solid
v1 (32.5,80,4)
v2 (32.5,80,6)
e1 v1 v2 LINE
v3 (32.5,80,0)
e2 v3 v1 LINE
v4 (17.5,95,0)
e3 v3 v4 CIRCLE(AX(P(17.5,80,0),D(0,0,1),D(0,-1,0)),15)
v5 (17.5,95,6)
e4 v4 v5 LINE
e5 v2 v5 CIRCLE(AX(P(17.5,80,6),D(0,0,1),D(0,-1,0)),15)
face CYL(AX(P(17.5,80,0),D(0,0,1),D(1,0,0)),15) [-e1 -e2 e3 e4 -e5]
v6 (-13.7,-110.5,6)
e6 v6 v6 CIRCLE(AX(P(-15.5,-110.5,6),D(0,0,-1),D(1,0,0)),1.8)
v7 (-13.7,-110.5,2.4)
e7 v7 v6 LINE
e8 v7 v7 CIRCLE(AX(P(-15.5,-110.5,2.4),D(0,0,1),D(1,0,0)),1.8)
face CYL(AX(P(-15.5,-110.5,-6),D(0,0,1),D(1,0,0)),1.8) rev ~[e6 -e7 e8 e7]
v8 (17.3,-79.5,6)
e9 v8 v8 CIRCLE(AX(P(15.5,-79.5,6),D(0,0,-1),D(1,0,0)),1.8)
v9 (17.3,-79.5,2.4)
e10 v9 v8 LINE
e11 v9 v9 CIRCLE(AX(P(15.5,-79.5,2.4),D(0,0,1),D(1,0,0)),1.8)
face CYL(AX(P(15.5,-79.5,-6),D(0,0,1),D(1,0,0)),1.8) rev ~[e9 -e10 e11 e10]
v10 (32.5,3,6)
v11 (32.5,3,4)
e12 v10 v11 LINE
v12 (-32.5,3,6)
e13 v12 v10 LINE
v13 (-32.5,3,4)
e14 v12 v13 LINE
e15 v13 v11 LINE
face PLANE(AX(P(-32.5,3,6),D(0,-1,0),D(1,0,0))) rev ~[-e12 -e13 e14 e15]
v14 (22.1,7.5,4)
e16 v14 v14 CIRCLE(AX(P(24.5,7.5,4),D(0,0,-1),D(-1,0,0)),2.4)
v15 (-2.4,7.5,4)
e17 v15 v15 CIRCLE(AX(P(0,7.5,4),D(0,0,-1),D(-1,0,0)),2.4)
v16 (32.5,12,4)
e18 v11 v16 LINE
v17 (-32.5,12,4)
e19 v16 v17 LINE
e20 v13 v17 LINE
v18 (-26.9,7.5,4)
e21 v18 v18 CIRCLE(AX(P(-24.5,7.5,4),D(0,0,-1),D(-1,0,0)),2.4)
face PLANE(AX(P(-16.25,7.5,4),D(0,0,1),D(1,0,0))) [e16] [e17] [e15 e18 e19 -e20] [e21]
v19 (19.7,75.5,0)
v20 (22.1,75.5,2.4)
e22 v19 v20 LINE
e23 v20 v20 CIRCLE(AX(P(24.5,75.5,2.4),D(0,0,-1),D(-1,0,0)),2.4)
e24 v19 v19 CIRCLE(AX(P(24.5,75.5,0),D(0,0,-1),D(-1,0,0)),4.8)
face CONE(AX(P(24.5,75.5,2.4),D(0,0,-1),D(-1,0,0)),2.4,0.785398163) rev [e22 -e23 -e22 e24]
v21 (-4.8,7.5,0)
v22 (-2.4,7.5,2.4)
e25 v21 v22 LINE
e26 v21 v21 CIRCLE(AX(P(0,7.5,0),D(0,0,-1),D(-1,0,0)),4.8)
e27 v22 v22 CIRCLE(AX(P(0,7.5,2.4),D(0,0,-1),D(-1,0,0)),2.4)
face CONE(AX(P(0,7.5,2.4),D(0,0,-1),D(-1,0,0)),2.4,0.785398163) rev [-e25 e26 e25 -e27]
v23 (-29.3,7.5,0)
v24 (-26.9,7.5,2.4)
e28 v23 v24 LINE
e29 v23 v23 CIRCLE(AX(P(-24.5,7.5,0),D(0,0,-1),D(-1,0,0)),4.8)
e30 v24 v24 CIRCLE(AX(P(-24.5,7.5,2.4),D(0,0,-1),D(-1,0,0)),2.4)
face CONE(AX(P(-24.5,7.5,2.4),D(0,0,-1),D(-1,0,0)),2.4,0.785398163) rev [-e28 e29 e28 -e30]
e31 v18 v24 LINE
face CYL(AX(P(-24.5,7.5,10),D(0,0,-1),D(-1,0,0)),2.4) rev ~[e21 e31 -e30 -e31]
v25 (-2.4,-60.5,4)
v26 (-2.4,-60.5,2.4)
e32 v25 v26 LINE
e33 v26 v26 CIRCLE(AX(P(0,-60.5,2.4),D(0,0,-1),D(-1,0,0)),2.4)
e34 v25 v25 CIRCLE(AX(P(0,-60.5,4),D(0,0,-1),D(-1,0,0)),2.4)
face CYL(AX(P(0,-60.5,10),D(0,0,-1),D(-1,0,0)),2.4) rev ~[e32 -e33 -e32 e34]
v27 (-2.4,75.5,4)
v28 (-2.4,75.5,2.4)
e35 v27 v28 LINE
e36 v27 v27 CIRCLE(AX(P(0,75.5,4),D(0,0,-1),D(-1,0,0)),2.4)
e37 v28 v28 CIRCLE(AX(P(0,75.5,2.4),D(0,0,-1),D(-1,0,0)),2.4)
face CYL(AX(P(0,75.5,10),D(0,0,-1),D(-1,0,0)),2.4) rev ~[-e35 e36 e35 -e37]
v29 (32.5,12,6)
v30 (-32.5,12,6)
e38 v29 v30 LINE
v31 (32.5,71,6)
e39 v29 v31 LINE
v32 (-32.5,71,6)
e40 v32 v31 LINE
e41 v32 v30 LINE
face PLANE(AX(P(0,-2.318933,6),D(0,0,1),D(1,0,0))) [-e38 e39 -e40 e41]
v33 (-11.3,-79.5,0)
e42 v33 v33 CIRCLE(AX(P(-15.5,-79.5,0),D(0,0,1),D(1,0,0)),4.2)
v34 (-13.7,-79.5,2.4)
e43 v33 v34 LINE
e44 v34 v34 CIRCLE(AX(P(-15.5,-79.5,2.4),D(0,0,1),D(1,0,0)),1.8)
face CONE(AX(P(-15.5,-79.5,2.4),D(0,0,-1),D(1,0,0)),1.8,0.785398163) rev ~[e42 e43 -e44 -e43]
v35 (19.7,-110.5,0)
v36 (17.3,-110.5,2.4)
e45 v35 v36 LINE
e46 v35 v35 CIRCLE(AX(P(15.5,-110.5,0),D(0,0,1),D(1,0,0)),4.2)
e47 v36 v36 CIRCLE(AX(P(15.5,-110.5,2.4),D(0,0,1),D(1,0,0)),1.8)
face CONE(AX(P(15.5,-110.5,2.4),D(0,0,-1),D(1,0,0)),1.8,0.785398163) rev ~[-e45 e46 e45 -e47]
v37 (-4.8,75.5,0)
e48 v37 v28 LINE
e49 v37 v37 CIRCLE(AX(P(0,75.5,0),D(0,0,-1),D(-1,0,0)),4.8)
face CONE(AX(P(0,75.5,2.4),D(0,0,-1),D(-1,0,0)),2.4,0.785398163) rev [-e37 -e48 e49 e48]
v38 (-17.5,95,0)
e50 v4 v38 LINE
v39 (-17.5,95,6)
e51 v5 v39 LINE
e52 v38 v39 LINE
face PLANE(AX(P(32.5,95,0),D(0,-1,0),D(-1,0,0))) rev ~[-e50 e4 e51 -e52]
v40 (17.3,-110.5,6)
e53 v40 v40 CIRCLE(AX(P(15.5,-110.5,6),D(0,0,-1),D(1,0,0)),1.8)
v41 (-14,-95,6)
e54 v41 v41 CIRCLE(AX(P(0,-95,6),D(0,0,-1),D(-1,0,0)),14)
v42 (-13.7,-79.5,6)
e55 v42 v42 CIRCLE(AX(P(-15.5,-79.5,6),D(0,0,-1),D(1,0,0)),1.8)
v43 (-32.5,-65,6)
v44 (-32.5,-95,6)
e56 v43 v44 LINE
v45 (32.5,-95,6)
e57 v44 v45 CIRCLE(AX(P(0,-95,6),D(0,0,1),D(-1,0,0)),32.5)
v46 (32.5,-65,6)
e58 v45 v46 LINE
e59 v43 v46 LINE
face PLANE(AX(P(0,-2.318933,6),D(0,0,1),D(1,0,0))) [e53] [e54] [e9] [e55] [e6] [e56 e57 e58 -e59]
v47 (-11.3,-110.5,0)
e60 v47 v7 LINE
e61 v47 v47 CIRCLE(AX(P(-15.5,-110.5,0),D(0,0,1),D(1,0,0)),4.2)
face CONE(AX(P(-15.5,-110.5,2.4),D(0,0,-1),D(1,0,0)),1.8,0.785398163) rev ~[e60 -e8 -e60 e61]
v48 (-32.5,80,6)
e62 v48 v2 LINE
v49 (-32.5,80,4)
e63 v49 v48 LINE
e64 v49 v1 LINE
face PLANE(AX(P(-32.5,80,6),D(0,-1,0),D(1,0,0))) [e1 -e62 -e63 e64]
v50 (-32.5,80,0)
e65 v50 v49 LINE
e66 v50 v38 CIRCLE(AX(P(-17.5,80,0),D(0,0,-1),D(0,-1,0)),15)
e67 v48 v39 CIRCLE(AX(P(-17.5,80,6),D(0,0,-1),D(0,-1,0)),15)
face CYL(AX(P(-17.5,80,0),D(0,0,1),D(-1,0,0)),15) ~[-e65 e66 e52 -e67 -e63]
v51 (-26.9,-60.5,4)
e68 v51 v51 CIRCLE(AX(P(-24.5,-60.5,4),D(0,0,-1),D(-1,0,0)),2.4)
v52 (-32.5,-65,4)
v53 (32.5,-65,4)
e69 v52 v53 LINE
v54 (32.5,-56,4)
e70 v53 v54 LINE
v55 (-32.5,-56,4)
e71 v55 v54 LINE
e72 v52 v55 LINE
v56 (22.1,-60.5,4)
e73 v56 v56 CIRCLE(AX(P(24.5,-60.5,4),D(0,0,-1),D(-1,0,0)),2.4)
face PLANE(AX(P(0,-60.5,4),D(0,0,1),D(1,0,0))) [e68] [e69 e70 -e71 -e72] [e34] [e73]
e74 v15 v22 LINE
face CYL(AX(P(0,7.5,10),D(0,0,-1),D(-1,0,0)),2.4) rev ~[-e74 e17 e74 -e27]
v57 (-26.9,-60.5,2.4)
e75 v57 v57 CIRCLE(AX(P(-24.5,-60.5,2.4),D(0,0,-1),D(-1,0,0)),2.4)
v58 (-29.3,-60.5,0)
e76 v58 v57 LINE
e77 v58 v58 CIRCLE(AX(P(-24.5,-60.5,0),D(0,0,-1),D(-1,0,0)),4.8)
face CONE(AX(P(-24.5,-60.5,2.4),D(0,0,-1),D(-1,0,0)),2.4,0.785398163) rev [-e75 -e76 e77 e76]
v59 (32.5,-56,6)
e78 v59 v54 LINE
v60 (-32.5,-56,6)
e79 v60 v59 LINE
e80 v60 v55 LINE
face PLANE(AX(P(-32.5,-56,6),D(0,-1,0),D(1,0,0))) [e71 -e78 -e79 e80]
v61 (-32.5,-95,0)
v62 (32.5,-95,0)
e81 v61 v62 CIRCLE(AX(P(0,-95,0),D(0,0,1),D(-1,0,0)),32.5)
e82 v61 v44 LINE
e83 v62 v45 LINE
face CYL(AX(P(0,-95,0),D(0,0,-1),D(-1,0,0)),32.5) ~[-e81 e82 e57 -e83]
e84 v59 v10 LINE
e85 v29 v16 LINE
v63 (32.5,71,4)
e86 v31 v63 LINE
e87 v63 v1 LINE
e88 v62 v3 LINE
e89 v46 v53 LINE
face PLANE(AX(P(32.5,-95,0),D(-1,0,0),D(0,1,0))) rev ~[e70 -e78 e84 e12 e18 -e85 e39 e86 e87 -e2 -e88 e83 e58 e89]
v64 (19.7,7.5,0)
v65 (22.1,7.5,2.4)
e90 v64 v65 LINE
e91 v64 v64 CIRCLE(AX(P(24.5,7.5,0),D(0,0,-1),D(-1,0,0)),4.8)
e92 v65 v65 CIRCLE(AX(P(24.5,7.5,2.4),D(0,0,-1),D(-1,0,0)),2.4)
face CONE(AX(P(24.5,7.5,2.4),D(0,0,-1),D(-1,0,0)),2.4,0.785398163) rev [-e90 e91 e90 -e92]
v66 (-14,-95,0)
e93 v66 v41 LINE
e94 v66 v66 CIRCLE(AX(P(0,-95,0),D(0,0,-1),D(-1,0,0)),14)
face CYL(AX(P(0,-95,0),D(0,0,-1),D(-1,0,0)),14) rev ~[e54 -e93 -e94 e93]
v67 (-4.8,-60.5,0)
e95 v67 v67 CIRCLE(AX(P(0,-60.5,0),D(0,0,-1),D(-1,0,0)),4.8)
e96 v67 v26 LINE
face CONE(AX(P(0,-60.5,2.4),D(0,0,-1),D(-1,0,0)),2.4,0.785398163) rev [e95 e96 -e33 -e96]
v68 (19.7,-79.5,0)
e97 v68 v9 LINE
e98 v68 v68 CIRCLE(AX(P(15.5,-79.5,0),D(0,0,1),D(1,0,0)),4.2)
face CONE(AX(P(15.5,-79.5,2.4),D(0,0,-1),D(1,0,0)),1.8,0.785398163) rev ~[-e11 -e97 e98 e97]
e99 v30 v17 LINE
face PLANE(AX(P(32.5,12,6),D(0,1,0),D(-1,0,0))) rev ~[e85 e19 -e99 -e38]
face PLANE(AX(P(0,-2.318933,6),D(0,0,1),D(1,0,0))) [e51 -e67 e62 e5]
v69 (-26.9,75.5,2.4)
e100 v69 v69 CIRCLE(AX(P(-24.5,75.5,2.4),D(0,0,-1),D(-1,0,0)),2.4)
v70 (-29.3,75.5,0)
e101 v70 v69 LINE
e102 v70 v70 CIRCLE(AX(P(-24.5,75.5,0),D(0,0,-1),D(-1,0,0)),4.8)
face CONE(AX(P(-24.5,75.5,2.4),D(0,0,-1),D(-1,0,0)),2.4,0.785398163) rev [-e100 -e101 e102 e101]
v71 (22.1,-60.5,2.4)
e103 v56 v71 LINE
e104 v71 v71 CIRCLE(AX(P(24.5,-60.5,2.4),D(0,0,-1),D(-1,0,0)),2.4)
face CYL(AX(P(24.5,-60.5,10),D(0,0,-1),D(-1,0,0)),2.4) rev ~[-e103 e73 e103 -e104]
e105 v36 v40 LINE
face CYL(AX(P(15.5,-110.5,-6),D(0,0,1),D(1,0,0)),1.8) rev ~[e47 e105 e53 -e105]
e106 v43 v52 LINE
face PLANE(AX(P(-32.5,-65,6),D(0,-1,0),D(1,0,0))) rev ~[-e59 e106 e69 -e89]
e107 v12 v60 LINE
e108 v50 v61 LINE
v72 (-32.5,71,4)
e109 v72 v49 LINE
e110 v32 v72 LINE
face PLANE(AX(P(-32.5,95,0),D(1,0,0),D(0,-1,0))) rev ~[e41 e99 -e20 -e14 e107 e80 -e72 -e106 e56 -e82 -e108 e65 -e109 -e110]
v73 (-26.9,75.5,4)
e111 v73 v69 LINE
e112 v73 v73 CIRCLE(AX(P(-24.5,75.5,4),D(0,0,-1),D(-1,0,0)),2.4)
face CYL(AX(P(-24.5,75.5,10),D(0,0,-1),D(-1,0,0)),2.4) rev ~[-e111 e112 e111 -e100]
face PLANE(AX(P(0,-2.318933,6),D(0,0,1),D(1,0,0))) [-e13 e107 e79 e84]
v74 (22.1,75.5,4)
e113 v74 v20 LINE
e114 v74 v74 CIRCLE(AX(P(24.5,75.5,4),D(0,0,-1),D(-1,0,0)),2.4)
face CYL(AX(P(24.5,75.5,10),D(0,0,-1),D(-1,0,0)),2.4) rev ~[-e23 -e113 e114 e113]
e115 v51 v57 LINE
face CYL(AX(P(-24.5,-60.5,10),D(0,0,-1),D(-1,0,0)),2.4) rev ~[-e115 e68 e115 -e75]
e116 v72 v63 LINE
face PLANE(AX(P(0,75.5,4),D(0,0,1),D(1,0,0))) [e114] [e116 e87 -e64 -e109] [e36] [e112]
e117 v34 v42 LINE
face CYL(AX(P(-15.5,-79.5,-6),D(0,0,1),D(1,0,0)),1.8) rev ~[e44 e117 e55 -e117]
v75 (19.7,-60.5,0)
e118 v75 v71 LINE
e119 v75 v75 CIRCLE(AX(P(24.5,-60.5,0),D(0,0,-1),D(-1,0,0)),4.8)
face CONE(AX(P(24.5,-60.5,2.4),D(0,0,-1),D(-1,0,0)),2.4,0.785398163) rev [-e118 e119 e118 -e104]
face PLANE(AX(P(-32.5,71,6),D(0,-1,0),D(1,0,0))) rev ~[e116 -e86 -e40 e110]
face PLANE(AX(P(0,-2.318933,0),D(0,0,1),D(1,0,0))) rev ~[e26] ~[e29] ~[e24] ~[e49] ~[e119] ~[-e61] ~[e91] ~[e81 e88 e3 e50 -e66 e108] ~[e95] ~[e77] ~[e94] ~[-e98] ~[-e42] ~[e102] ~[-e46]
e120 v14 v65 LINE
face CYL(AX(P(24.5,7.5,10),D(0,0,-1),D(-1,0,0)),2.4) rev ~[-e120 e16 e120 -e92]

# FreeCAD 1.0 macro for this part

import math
import FreeCAD as App
import Part
import Sketcher

V = App.Vector


def edges_at(feature, points):
    """Names of the edges that pass closest to the given points."""
    edges = feature.Shape.Edges
    near = lambda p: min(range(len(edges)), key=lambda i: edges[i].distToShape(Part.Vertex(*p))[0])
    return sorted({f"Edge{near(p) + 1}" for p in points})

doc = App.newDocument("Part")
body = doc.addObject("PartDesign::Body", "Body")

# Sketch on XY plane
sketch1 = body.newObject("Sketcher::SketchObject", "Sketch")
sketch1.AttachmentSupport = (doc.getObject("XY_Plane"), [""])
sketch1.MapMode = "FlatFace"
sketch1.addGeometry([
    Part.LineSegment(V(-32, 95, 0), V(-32, -95, 0)),  # 0
    Part.ArcOfCircle(Part.Circle(V(0, -95, 0), V(0, 0, 1), 32), math.radians(180), math.radians(360)),  # 1
    Part.LineSegment(V(32, -95, 0), V(32, 95, 0)),  # 2
    Part.LineSegment(V(32, 95, 0), V(-32, 95, 0)),  # 3
    Part.Circle(V(0, -95, 0), V(0, 0, 1), 14),  # 4
], False)
sketch1.addConstraint([
    Sketcher.Constraint("Tangent", 0, 2, 1, 1),
    Sketcher.Constraint("Tangent", 1, 2, 2, 1),
    Sketcher.Constraint("Coincident", 2, 2, 3, 1),
    Sketcher.Constraint("Coincident", 3, 2, 0, 1),
    Sketcher.Constraint("Vertical", 0),
    Sketcher.Constraint("Vertical", 2),
    Sketcher.Constraint("Horizontal", 3),
    Sketcher.Constraint("Coincident", 4, 3, 1, 3),
    Sketcher.Constraint("Symmetric", 0, 2, 2, 2, -1, 1),
    Sketcher.Constraint("Diameter", 4, 28.0),
    Sketcher.Constraint("Radius", 1, 32.5),
    Sketcher.Constraint("DistanceY", 0, 2, 0, 1, 190.0),
])
pad1 = body.newObject("PartDesign::Pad", "Pad")
pad1.Profile = sketch1
pad1.Length = 6

# Sketch on XY plane
sketch2 = body.newObject("Sketcher::SketchObject", "Sketch001")
sketch2.AttachmentSupport = (doc.getObject("XY_Plane"), [""])
sketch2.MapMode = "FlatFace"
sketch2.addGeometry([
    Part.Circle(V(15.5, -110.5, 0), V(0, 0, 1), 1.8),
    Part.Circle(V(-15.5, -110.5, 0), V(0, 0, 1), 1.8),
    Part.Circle(V(-15.5, -79.5, 0), V(0, 0, 1), 1.8),
    Part.Circle(V(15.5, -79.5, 0), V(0, 0, 1), 1.8),
], False)
sketch2.addConstraint([
    Sketcher.Constraint("Equal", 0, 1),
    Sketcher.Constraint("Equal", 1, 2),
    Sketcher.Constraint("Equal", 2, 3),
    Sketcher.Constraint("Symmetric", 0, 3, 1, 3, -2),
    Sketcher.Constraint("Symmetric", 2, 3, 3, 3, -2),
    Sketcher.Constraint("Vertical", 1, 3, 2, 3),
    Sketcher.Constraint("Diameter", 0, 3.6),
    Sketcher.Constraint("DistanceX", 1, 3, 0, 3, 31.0),
    Sketcher.Constraint("DistanceY", 1, 3, 2, 3, 31.0),
    Sketcher.Constraint("DistanceY", 0, 3, -1, 1, 110.5),
])
doc.recompute()
hole = body.newObject("PartDesign::Hole", "Hole")
hole.Profile = sketch2
hole.ThreadType = "None"
hole.Diameter = 3.6
hole.DepthType = "Dimension"
hole.Depth = 6
hole.DrillPoint = "Angled"
hole.DrillPointAngle = 118
hole.Reversed = True
doc.recompute()

fillet = body.newObject("PartDesign::Fillet", "Fillet")
fillet.Base = (hole, edges_at(hole, [(-32.5, 95, 3), (32.5, 95, 3)]))
fillet.Radius = 15

# Sketch on XY plane
sketch3 = body.newObject("Sketcher::SketchObject", "Sketch002")
sketch3.AttachmentSupport = (doc.getObject("XY_Plane"), [""])
sketch3.MapMode = "FlatFace"
sketch3.AttachmentOffset = App.Placement(V(0, 0, 6), App.Rotation())
sketch3.addGeometry([
    Part.LineSegment(V(-32, 80, 0), V(-32, 71, 0)),  # 0
    Part.LineSegment(V(-32, 71, 0), V(32, 71, 0)),  # 1
    Part.LineSegment(V(32, 71, 0), V(32, 80, 0)),  # 2
    Part.LineSegment(V(32, 80, 0), V(-32, 80, 0)),  # 3
    Part.LineSegment(V(-32, 12, 0), V(-32, 3, 0)),  # 4
    Part.LineSegment(V(-32, 3, 0), V(32, 3, 0)),  # 5
    Part.LineSegment(V(32, 3, 0), V(32, 12, 0)),  # 6
    Part.LineSegment(V(32, 12, 0), V(-32, 12, 0)),  # 7
    Part.LineSegment(V(-32, -56, 0), V(-32, -65, 0)),  # 8
    Part.LineSegment(V(-32, -65, 0), V(32, -65, 0)),  # 9
    Part.LineSegment(V(32, -65, 0), V(32, -56, 0)),  # 10
    Part.LineSegment(V(32, -56, 0), V(-32, -56, 0)),  # 11
], False)
sketch3.addConstraint([
    Sketcher.Constraint("Coincident", 0, 2, 1, 1),
    Sketcher.Constraint("Coincident", 1, 2, 2, 1),
    Sketcher.Constraint("Coincident", 2, 2, 3, 1),
    Sketcher.Constraint("Coincident", 3, 2, 0, 1),
    Sketcher.Constraint("Coincident", 4, 2, 5, 1),
    Sketcher.Constraint("Coincident", 5, 2, 6, 1),
    Sketcher.Constraint("Coincident", 6, 2, 7, 1),
    Sketcher.Constraint("Coincident", 7, 2, 4, 1),
    Sketcher.Constraint("Coincident", 8, 2, 9, 1),
    Sketcher.Constraint("Coincident", 9, 2, 10, 1),
    Sketcher.Constraint("Coincident", 10, 2, 11, 1),
    Sketcher.Constraint("Coincident", 11, 2, 8, 1),
    Sketcher.Constraint("Vertical", 0),
    Sketcher.Constraint("Horizontal", 1),
    Sketcher.Constraint("Vertical", 2),
    Sketcher.Constraint("Horizontal", 3),
    Sketcher.Constraint("Vertical", 4),
    Sketcher.Constraint("Horizontal", 5),
    Sketcher.Constraint("Vertical", 6),
    Sketcher.Constraint("Horizontal", 7),
    Sketcher.Constraint("Vertical", 8),
    Sketcher.Constraint("Horizontal", 9),
    Sketcher.Constraint("Vertical", 10),
    Sketcher.Constraint("Horizontal", 11),
    Sketcher.Constraint("Vertical", 3, 2, 4, 2),
    Sketcher.Constraint("Vertical", 2, 2, 5, 2),
    Sketcher.Constraint("Vertical", 7, 2, 8, 2),
    Sketcher.Constraint("Vertical", 6, 2, 9, 2),
    Sketcher.Constraint("Equal", 2, 4),
    Sketcher.Constraint("Equal", 6, 8),
    Sketcher.Constraint("DistanceX", 1, 1, 1, 2, 65.0),
    Sketcher.Constraint("DistanceY", 0, 2, 0, 1, 9.0),
    Sketcher.Constraint("DistanceY", -1, 1, 0, 2, 71.0),
    Sketcher.Constraint("DistanceY", -1, 1, 4, 2, 3.0),
    Sketcher.Constraint("DistanceY", 8, 2, -1, 1, 65.0),
    Sketcher.Constraint("DistanceX", 0, 2, -1, 1, 32.5),
])
pocket1 = body.newObject("PartDesign::Pocket", "Pocket")
pocket1.Profile = sketch3
pocket1.Length = 2

# Sketch on XY plane
sketch4 = body.newObject("Sketcher::SketchObject", "Sketch003")
sketch4.AttachmentSupport = (doc.getObject("XY_Plane"), [""])
sketch4.MapMode = "FlatFace"
sketch4.AttachmentOffset = App.Placement(V(0, 0, 4), App.Rotation())
sketch4.addGeometry([
    Part.Circle(V(-24.5, -60.5, 0), V(0, 0, 1), 2.4),  # 0
    Part.Circle(V(-24.5, 75.5, 0), V(0, 0, 1), 2.4),  # 1
    Part.Circle(V(24.5, 75.5, 0), V(0, 0, 1), 2.4),  # 2
    Part.Circle(V(0, 75.5, 0), V(0, 0, 1), 2.4),  # 3
    Part.Circle(V(-24.5, 7.5, 0), V(0, 0, 1), 2.4),  # 4
    Part.Circle(V(0, 7.5, 0), V(0, 0, 1), 2.4),  # 5
    Part.Circle(V(24.5, 7.5, 0), V(0, 0, 1), 2.4),  # 6
    Part.Circle(V(24.5, -60.5, 0), V(0, 0, 1), 2.4),  # 7
    Part.Circle(V(0, -60.5, 0), V(0, 0, 1), 2.4),  # 8
], False)
sketch4.addConstraint([
    Sketcher.Constraint("Equal", 0, 1),
    Sketcher.Constraint("Equal", 1, 2),
    Sketcher.Constraint("Equal", 2, 3),
    Sketcher.Constraint("Equal", 3, 4),
    Sketcher.Constraint("Equal", 4, 5),
    Sketcher.Constraint("Equal", 5, 6),
    Sketcher.Constraint("Equal", 6, 7),
    Sketcher.Constraint("Equal", 7, 8),
    Sketcher.Constraint("Symmetric", 1, 3, 2, 3, -2),
    Sketcher.Constraint("Symmetric", 4, 3, 6, 3, -2),
    Sketcher.Constraint("Symmetric", 0, 3, 7, 3, -2),
    Sketcher.Constraint("PointOnObject", 3, 3, -2),
    Sketcher.Constraint("PointOnObject", 5, 3, -2),
    Sketcher.Constraint("PointOnObject", 8, 3, -2),
    Sketcher.Constraint("Horizontal", 2, 3, 3, 3),
    Sketcher.Constraint("Horizontal", 4, 3, 5, 3),
    Sketcher.Constraint("Horizontal", 7, 3, 8, 3),
    Sketcher.Constraint("Vertical", 0, 3, 1, 3),
    Sketcher.Constraint("Vertical", 1, 3, 4, 3),
    Sketcher.Constraint("Diameter", 0, 4.8),
    Sketcher.Constraint("DistanceY", 0, 3, 1, 3, 136.0),
    Sketcher.Constraint("DistanceX", 1, 3, 2, 3, 49.0),
    Sketcher.Constraint("DistanceY", 0, 3, 4, 3, 68.0),
    Sketcher.Constraint("DistanceY", 0, 3, -1, 1, 60.5),
])
doc.recompute()
hole2 = body.newObject("PartDesign::Hole", "Hole001")
hole2.Profile = sketch4
hole2.ThreadType = "None"
hole2.Diameter = 4.8
hole2.DepthType = "Dimension"
hole2.Depth = 6
hole2.DrillPoint = "Angled"
hole2.DrillPointAngle = 118
doc.recompute()

chamfer = body.newObject("PartDesign::Chamfer", "Chamfer")
chamfer.Base = (hole2, edges_at(hole2, [
    (-22.1, -60.5, 0),
    (2.4, -60.5, 0),
    (26.9, -60.5, 0),
    (26.9, 7.5, 0),
    (2.4, 7.5, 0),
    (-22.1, 7.5, 0),
    (2.4, 75.5, 0),
    (26.9, 75.5, 0),
    (-22.1, 75.5, 0),
    (13.7, -79.5, 0),
    (-17.3, -79.5, 0),
    (-17.3, -110.5, 0),
    (13.7, -110.5, 0),
]))
chamfer.Size = 2.4

doc.recompute()
